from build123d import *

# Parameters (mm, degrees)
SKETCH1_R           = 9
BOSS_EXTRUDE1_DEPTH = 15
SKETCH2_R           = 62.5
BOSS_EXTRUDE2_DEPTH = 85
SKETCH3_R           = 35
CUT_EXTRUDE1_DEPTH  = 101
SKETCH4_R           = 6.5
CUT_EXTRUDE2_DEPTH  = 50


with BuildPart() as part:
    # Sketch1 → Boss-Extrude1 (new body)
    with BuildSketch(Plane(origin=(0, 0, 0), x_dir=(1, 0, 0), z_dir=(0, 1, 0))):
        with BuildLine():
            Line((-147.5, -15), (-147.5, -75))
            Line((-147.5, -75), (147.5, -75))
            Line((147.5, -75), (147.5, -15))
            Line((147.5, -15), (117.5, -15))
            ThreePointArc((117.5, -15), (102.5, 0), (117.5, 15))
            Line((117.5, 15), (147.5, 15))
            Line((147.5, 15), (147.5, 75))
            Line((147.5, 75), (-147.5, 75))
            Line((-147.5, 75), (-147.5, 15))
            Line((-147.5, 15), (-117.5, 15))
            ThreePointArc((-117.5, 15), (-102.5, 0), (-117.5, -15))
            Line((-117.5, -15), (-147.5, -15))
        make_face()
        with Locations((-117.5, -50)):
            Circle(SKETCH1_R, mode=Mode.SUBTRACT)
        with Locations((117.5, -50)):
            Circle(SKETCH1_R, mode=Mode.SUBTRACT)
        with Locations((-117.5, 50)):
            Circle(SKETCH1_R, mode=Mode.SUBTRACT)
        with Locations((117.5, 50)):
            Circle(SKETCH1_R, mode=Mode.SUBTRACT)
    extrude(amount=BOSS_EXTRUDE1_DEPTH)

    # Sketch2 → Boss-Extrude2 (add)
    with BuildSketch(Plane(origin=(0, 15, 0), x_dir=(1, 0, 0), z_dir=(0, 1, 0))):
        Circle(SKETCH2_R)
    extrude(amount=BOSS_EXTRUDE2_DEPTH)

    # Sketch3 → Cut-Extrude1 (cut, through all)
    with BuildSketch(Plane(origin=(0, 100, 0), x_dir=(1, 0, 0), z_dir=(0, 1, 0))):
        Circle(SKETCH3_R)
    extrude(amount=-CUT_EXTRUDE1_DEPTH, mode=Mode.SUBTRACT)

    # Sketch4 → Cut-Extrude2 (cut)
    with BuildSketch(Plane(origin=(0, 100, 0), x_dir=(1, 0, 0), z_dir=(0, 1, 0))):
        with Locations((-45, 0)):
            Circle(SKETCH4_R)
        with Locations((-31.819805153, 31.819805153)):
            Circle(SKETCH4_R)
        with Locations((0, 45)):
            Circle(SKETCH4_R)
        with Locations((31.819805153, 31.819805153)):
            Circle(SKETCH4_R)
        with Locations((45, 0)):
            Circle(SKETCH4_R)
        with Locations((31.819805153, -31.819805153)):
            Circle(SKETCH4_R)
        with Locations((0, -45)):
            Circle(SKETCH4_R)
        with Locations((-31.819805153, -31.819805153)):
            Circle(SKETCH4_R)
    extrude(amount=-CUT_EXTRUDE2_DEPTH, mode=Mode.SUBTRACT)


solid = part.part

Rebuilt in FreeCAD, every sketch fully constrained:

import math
import FreeCAD as App
import Part
import Sketcher
from FreeCAD import Vector

doc = App.newDocument("Part")
params = doc.addObject("Spreadsheet::Sheet", "Params")
for row, (alias, value) in enumerate([
    ("sketch1_diameter", "18 mm"),
    ("sketch1_radius", "15 mm"),
    ("sketch1_width", "295 mm"),
    ("sketch1_width2", "30 mm"),
    ("sketch1_height", "60 mm"),
    ("pad1_length", "15 mm"),
    ("sketch2_diameter", "125 mm"),
    ("pad2_length", "85 mm"),
    ("sketch3_diameter", "70 mm"),
    ("sketch4_diameter", "13 mm"),
    ("pocket2_length", "50 mm"),
], start=1):
    params.set(f"A{row}", alias)
    params.set(f"B{row}", "=" + value)
    params.setAlias(f"B{row}", alias)

body = doc.addObject("PartDesign::Body", "Body")

# Sketch on XZ plane
sketch1 = doc.addObject("Sketcher::SketchObject", "Sketch")
body.addObject(sketch1)
sketch1.AttachmentSupport = (doc.XZ_Plane, [""])
sketch1.MapMode = "FlatFace"
sketch1.addGeometry([
    Part.LineSegment(Vector(-147.5, 15, 0), Vector(-147.5, 75, 0)),  # 0
    Part.LineSegment(Vector(-147.5, 75, 0), Vector(147.5, 75, 0)),  # 1
    Part.LineSegment(Vector(147.5, 75, 0), Vector(147.5, 15, 0)),  # 2
    Part.LineSegment(Vector(147.5, 15, 0), Vector(117.5, 15, 0)),  # 3
    Part.ArcOfCircle(Part.Circle(Vector(117.5, 0, 0), Vector(0, 0, 1), 15), math.radians(90), math.radians(270)),  # 4
    Part.LineSegment(Vector(117.5, -15, 0), Vector(147.5, -15, 0)),  # 5
    Part.LineSegment(Vector(147.5, -15, 0), Vector(147.5, -75, 0)),  # 6
    Part.LineSegment(Vector(147.5, -75, 0), Vector(-147.5, -75, 0)),  # 7
    Part.LineSegment(Vector(-147.5, -75, 0), Vector(-147.5, -15, 0)),  # 8
    Part.LineSegment(Vector(-147.5, -15, 0), Vector(-117.5, -15, 0)),  # 9
    Part.ArcOfCircle(Part.Circle(Vector(-117.5, 0, 0), Vector(0, 0, 1), 15), math.radians(-90), math.radians(90)),  # 10
    Part.LineSegment(Vector(-117.5, 15, 0), Vector(-147.5, 15, 0)),  # 11
    Part.Circle(Vector(-117.5, 50, 0), Vector(0, 0, 1), 9),  # 12
    Part.Circle(Vector(117.5, 50, 0), Vector(0, 0, 1), 9),  # 13
    Part.Circle(Vector(-117.5, -50, 0), Vector(0, 0, 1), 9),  # 14
    Part.Circle(Vector(117.5, -50, 0), Vector(0, 0, 1), 9),  # 15
], False)
sketch1.addConstraint([
    Sketcher.Constraint("Coincident", 0, 2, 1, 1),
    Sketcher.Constraint("Coincident", 1, 2, 2, 1),
    Sketcher.Constraint("Coincident", 2, 2, 3, 1),
    Sketcher.Constraint("Tangent", 3, 2, 4, 1),
    Sketcher.Constraint("Tangent", 4, 2, 5, 1),
    Sketcher.Constraint("Coincident", 5, 2, 6, 1),
    Sketcher.Constraint("Coincident", 6, 2, 7, 1),
    Sketcher.Constraint("Coincident", 7, 2, 8, 1),
    Sketcher.Constraint("Coincident", 8, 2, 9, 1),
    Sketcher.Constraint("Tangent", 9, 2, 10, 1),
    Sketcher.Constraint("Tangent", 10, 2, 11, 1),
    Sketcher.Constraint("Coincident", 11, 2, 0, 1),
    Sketcher.Constraint("Vertical", 0),
    Sketcher.Constraint("Horizontal", 1),
    Sketcher.Constraint("Vertical", 2),
    Sketcher.Constraint("Horizontal", 3),
    Sketcher.Constraint("Horizontal", 5),
    Sketcher.Constraint("Vertical", 6),
    Sketcher.Constraint("Horizontal", 7),
    Sketcher.Constraint("Vertical", 8),
    Sketcher.Constraint("Horizontal", 9),
    Sketcher.Constraint("Horizontal", 11),
    Sketcher.Constraint("Equal", 4, 10),
    Sketcher.Constraint("Equal", 12, 13),
    Sketcher.Constraint("Equal", 13, 14),
    Sketcher.Constraint("Equal", 14, 15),
    Sketcher.Constraint("Symmetric", 4, 3, 10, 3, -1, 1),
    Sketcher.Constraint("Symmetric", 13, 3, 14, 3, -1, 1),
    Sketcher.Constraint("Symmetric", 12, 3, 15, 3, -1, 1),
    Sketcher.Constraint("Symmetric", 0, 2, 6, 2, -1, 1),
    Sketcher.Constraint("Symmetric", 12, 3, 13, 3, -2),
    Sketcher.Constraint("Symmetric", 5, 2, 8, 2, -2),
    Sketcher.Constraint("Vertical", 10, 3, 12, 3),
    Sketcher.Constraint("Vertical", 2, 2, 5, 2),
    Sketcher.Constraint("Diameter", 12, 18.0),
    Sketcher.Constraint("Radius", 4, 15.0),
    Sketcher.Constraint("DistanceX", 1, 1, 1, 2, 295.0),
    Sketcher.Constraint("DistanceX", 3, 2, 3, 1, 30.0),
    Sketcher.Constraint("DistanceY", 0, 1, 0, 2, 60.0),
    Sketcher.Constraint("DistanceY", -1, 1, 12, 3, 50.0),
])
sketch1.setExpression("Constraints[34]", "Params.sketch1_diameter")
sketch1.setExpression("Constraints[35]", "Params.sketch1_radius")
sketch1.setExpression("Constraints[36]", "Params.sketch1_width")
sketch1.setExpression("Constraints[37]", "Params.sketch1_width2")
sketch1.setExpression("Constraints[38]", "Params.sketch1_height")
pad1 = doc.addObject("PartDesign::Pad", "Pad")
body.addObject(pad1)
pad1.Profile = sketch1
pad1.setExpression("Length", "Params.pad1_length")
pad1.Reversed = True

# Sketch on XZ plane
sketch2 = doc.addObject("Sketcher::SketchObject", "Sketch001")
body.addObject(sketch2)
sketch2.AttachmentSupport = (doc.XZ_Plane, [""])
sketch2.MapMode = "FlatFace"
sketch2.AttachmentOffset = App.Placement(Vector(0, 0, -15), App.Rotation())
sketch2.addGeometry(Part.Circle(Vector(0, 0, 0), Vector(0, 0, 1), 62.5), False)
sketch2.addConstraint([
    Sketcher.Constraint("Coincident", 0, 3, -1, 1),
    Sketcher.Constraint("Diameter", 0, 125.0),
])
sketch2.setExpression("Constraints[1]", "Params.sketch2_diameter")
pad2 = doc.addObject("PartDesign::Pad", "Pad001")
body.addObject(pad2)
pad2.Profile = sketch2
pad2.setExpression("Length", "Params.pad2_length")
pad2.Reversed = True

# Sketch on XZ plane
sketch3 = doc.addObject("Sketcher::SketchObject", "Sketch002")
body.addObject(sketch3)
sketch3.AttachmentSupport = (doc.XZ_Plane, [""])
sketch3.MapMode = "FlatFace"
sketch3.AttachmentOffset = App.Placement(Vector(0, 0, -100), App.Rotation())
sketch3.addGeometry(Part.Circle(Vector(0, 0, 0), Vector(0, 0, 1), 35), False)
sketch3.addConstraint([
    Sketcher.Constraint("Coincident", 0, 3, -1, 1),
    Sketcher.Constraint("Diameter", 0, 70.0),
])
sketch3.setExpression("Constraints[1]", "Params.sketch3_diameter")
pocket1 = doc.addObject("PartDesign::Pocket", "Pocket")
body.addObject(pocket1)
pocket1.Profile = sketch3
pocket1.Type = "ThroughAll"
pocket1.Reversed = True

# Sketch on XZ plane
sketch4 = doc.addObject("Sketcher::SketchObject", "Sketch003")
body.addObject(sketch4)
sketch4.AttachmentSupport = (doc.XZ_Plane, [""])
sketch4.MapMode = "FlatFace"
sketch4.AttachmentOffset = App.Placement(Vector(0, 0, -100), App.Rotation())
sketch4.addGeometry([
    Part.Circle(Vector(-45, 0, 0), Vector(0, 0, 1), 6.5),  # 0
    Part.Circle(Vector(-31.819805, -31.819805, 0), Vector(0, 0, 1), 6.5),  # 1
    Part.Circle(Vector(0, -45, 0), Vector(0, 0, 1), 6.5),  # 2
    Part.Circle(Vector(31.819805, -31.819805, 0), Vector(0, 0, 1), 6.5),  # 3
    Part.Circle(Vector(45, 0, 0), Vector(0, 0, 1), 6.5),  # 4
    Part.Circle(Vector(31.819805, 31.819805, 0), Vector(0, 0, 1), 6.5),  # 5
    Part.Circle(Vector(0, 45, 0), Vector(0, 0, 1), 6.5),  # 6
    Part.Circle(Vector(-31.819805, 31.819805, 0), Vector(0, 0, 1), 6.5),  # 7
], False)
sketch4.addConstraint([
    Sketcher.Constraint("Equal", 0, 1),
    Sketcher.Constraint("Equal", 1, 2),
    Sketcher.Constraint("Equal", 2, 3),
    Sketcher.Constraint("Equal", 3, 4),
    Sketcher.Constraint("Equal", 4, 5),
    Sketcher.Constraint("Equal", 5, 6),
    Sketcher.Constraint("Equal", 6, 7),
    Sketcher.Constraint("Symmetric", 0, 3, 4, 3, -1, 1),
    Sketcher.Constraint("Symmetric", 1, 3, 5, 3, -1, 1),
    Sketcher.Constraint("Symmetric", 2, 3, 6, 3, -1, 1),
    Sketcher.Constraint("Symmetric", 3, 3, 7, 3, -1, 1),
    Sketcher.Constraint("Symmetric", 1, 3, 3, 3, -2),
    Sketcher.Constraint("PointOnObject", 0, 3, -1),
    Sketcher.Constraint("PointOnObject", 2, 3, -2),
    Sketcher.Constraint("Diameter", 0, 13.0),
    Sketcher.Constraint("DistanceX", 0, 3, -1, 1, 45.0),
    Sketcher.Constraint("DistanceY", 2, 3, -1, 1, 45.0),
    Sketcher.Constraint("DistanceX", 1, 3, 3, 3, 63.63961),
    Sketcher.Constraint("DistanceY", 3, 3, 5, 3, 63.63961),
])
sketch4.setExpression("Constraints[14]", "Params.sketch4_diameter")
pocket2 = doc.addObject("PartDesign::Pocket", "Pocket001")
body.addObject(pocket2)
pocket2.Profile = sketch4
pocket2.setExpression("Length", "Params.pocket2_length")
pocket2.Reversed = True

doc.recompute()
